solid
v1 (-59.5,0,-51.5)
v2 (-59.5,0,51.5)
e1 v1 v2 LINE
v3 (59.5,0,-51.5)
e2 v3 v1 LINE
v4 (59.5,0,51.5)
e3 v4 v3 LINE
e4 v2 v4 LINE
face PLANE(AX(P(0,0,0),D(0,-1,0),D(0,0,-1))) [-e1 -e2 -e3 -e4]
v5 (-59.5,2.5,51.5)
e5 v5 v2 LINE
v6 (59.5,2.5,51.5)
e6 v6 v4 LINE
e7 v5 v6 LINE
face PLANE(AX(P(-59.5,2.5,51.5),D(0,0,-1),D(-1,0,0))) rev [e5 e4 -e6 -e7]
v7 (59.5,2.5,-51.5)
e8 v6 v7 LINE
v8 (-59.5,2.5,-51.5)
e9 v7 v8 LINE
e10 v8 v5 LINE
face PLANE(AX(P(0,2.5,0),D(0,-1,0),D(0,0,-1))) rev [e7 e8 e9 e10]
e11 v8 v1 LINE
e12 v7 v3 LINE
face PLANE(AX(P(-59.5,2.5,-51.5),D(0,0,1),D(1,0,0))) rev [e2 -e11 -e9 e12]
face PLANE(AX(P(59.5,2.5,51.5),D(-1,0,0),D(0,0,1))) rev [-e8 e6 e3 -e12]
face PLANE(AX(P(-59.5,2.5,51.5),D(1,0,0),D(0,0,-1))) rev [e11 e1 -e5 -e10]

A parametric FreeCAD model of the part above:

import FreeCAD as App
import Part
import Sketcher
Q = App.Units.Quantity


def add_polygon(sketch, points):
    """Adds a closed chain of lines whose ends are joined by coincident constraints."""
    first, n = sketch.GeometryCount, len(points)
    for a, b in zip(points, points[1:] + points[:1]):
        sketch.addGeometry(Part.LineSegment(App.Vector(*a, 0), App.Vector(*b, 0)), False)
    for i in range(n):
        sketch.addConstraint(Sketcher.Constraint("Coincident", first + i, 2, first + (i + 1) % n, 1))

doc = App.newDocument("Part")
body = doc.addObject("PartDesign::Body", "Body")

# Sketch on XZ plane
sketch1 = body.newObject("Sketcher::SketchObject", "Sketch")
sketch1.AttachmentSupport = (doc.getObject("XZ_Plane"), [""])
sketch1.MapMode = "FlatFace"
add_polygon(sketch1, [(-59.5, -51.5), (-59.5, 51.5), (59.5, 51.5), (59.5, -51.5)])  # lines 0-3
sketch1.addConstraint([
    Sketcher.Constraint("Vertical", 0),
    Sketcher.Constraint("Horizontal", 1),
    Sketcher.Constraint("Vertical", 2),
    Sketcher.Constraint("Horizontal", 3),
    Sketcher.Constraint("Symmetric", 0, 2, 2, 2, -1, 1),
    Sketcher.Constraint("DistanceX", 1, 1, 1, 2, Q("119 mm")),
    Sketcher.Constraint("DistanceY", 0, 1, 0, 2, Q("103 mm")),
])
pad1 = body.newObject("PartDesign::Pad", "Pad")
pad1.Profile = sketch1
pad1.Length = 2.5
pad1.Reversed = True

doc.recompute()
